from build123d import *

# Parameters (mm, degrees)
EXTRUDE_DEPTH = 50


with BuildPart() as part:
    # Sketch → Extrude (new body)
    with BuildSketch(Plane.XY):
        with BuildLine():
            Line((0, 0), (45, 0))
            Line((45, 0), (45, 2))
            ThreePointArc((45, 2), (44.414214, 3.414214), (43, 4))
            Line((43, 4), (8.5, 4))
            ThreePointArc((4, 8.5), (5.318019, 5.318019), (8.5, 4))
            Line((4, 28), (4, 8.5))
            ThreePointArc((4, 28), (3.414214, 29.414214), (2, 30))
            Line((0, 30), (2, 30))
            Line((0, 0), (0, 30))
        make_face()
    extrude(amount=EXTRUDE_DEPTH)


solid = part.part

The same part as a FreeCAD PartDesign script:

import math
import FreeCAD as App
import Part
import Sketcher
from FreeCAD import Vector

doc = App.newDocument("Part")
body = doc.addObject("PartDesign::Body", "Body")

sketch1 = body.newObject("Sketcher::SketchObject", "Sketch")
sketch1.AttachmentSupport = (doc.getObject("XY_Plane"), [""])
sketch1.MapMode = "FlatFace"
sketch1.addGeometry(Part.LineSegment(Vector(0, 0, 0), Vector(45, 0, 0)), False)
sketch1.addGeometry(Part.LineSegment(Vector(45, 0, 0), Vector(45, 2, 0)), False)
sketch1.addGeometry(Part.ArcOfCircle(Part.Circle(Vector(43, 2, 0), Vector(0, 0, 1), 2), math.radians(0), math.radians(90)), False)
sketch1.addGeometry(Part.LineSegment(Vector(43, 4, 0), Vector(8.5, 4, 0)), False)
sketch1.addGeometry(Part.ArcOfCircle(Part.Circle(Vector(8.5, 8.5, 0), Vector(0, 0, 1), 4.5), math.radians(180), math.radians(270)), False)
sketch1.addGeometry(Part.LineSegment(Vector(4, 8.5, 0), Vector(4, 28, 0)), False)
sketch1.addGeometry(Part.ArcOfCircle(Part.Circle(Vector(2, 28, 0), Vector(0, 0, 1), 2), math.radians(0), math.radians(90)), False)
sketch1.addGeometry(Part.LineSegment(Vector(2, 30, 0), Vector(0, 30, 0)), False)
sketch1.addGeometry(Part.LineSegment(Vector(0, 30, 0), Vector(0, 0, 0)), False)
sketch1.addConstraint(Sketcher.Constraint("Coincident", 0, 2, 1, 1))
sketch1.addConstraint(Sketcher.Constraint("Tangent", 1, 2, 2, 1))
sketch1.addConstraint(Sketcher.Constraint("Tangent", 2, 2, 3, 1))
sketch1.addConstraint(Sketcher.Constraint("Tangent", 3, 2, 4, 2))
sketch1.addConstraint(Sketcher.Constraint("Tangent", 4, 1, 5, 1))
sketch1.addConstraint(Sketcher.Constraint("Tangent", 5, 2, 6, 1))
sketch1.addConstraint(Sketcher.Constraint("Tangent", 6, 2, 7, 1))
sketch1.addConstraint(Sketcher.Constraint("Coincident", 7, 2, 8, 1))
sketch1.addConstraint(Sketcher.Constraint("Coincident", 8, 2, 0, 1))
sketch1.addConstraint(Sketcher.Constraint("Horizontal", 0))
sketch1.addConstraint(Sketcher.Constraint("Vertical", 1))
sketch1.addConstraint(Sketcher.Constraint("Horizontal", 3))
sketch1.addConstraint(Sketcher.Constraint("Vertical", 5))
sketch1.addConstraint(Sketcher.Constraint("Horizontal", 7))
sketch1.addConstraint(Sketcher.Constraint("Vertical", 8))
sketch1.addConstraint(Sketcher.Constraint("Coincident", 8, 2, -1, 1))
sketch1.addConstraint(Sketcher.Constraint("Equal", 2, 6))
sketch1.addConstraint(Sketcher.Constraint("Equal", 7, 1))
sketch1.addConstraint(Sketcher.Constraint("Radius", 2, 1.999999))
sketch1.addConstraint(Sketcher.Constraint("Radius", 4, 4.499998))
sketch1.addConstraint(Sketcher.Constraint("DistanceX", 0, 1, 0, 2, 45.0))
sketch1.addConstraint(Sketcher.Constraint("DistanceX", 7, 2, 7, 1, 2.0))
sketch1.addConstraint(Sketcher.Constraint("DistanceY", 8, 2, 8, 1, 30.0))
pad1 = body.newObject("PartDesign::Pad", "Pad")
pad1.Profile = sketch1
pad1.Length = 50

doc.recompute()
